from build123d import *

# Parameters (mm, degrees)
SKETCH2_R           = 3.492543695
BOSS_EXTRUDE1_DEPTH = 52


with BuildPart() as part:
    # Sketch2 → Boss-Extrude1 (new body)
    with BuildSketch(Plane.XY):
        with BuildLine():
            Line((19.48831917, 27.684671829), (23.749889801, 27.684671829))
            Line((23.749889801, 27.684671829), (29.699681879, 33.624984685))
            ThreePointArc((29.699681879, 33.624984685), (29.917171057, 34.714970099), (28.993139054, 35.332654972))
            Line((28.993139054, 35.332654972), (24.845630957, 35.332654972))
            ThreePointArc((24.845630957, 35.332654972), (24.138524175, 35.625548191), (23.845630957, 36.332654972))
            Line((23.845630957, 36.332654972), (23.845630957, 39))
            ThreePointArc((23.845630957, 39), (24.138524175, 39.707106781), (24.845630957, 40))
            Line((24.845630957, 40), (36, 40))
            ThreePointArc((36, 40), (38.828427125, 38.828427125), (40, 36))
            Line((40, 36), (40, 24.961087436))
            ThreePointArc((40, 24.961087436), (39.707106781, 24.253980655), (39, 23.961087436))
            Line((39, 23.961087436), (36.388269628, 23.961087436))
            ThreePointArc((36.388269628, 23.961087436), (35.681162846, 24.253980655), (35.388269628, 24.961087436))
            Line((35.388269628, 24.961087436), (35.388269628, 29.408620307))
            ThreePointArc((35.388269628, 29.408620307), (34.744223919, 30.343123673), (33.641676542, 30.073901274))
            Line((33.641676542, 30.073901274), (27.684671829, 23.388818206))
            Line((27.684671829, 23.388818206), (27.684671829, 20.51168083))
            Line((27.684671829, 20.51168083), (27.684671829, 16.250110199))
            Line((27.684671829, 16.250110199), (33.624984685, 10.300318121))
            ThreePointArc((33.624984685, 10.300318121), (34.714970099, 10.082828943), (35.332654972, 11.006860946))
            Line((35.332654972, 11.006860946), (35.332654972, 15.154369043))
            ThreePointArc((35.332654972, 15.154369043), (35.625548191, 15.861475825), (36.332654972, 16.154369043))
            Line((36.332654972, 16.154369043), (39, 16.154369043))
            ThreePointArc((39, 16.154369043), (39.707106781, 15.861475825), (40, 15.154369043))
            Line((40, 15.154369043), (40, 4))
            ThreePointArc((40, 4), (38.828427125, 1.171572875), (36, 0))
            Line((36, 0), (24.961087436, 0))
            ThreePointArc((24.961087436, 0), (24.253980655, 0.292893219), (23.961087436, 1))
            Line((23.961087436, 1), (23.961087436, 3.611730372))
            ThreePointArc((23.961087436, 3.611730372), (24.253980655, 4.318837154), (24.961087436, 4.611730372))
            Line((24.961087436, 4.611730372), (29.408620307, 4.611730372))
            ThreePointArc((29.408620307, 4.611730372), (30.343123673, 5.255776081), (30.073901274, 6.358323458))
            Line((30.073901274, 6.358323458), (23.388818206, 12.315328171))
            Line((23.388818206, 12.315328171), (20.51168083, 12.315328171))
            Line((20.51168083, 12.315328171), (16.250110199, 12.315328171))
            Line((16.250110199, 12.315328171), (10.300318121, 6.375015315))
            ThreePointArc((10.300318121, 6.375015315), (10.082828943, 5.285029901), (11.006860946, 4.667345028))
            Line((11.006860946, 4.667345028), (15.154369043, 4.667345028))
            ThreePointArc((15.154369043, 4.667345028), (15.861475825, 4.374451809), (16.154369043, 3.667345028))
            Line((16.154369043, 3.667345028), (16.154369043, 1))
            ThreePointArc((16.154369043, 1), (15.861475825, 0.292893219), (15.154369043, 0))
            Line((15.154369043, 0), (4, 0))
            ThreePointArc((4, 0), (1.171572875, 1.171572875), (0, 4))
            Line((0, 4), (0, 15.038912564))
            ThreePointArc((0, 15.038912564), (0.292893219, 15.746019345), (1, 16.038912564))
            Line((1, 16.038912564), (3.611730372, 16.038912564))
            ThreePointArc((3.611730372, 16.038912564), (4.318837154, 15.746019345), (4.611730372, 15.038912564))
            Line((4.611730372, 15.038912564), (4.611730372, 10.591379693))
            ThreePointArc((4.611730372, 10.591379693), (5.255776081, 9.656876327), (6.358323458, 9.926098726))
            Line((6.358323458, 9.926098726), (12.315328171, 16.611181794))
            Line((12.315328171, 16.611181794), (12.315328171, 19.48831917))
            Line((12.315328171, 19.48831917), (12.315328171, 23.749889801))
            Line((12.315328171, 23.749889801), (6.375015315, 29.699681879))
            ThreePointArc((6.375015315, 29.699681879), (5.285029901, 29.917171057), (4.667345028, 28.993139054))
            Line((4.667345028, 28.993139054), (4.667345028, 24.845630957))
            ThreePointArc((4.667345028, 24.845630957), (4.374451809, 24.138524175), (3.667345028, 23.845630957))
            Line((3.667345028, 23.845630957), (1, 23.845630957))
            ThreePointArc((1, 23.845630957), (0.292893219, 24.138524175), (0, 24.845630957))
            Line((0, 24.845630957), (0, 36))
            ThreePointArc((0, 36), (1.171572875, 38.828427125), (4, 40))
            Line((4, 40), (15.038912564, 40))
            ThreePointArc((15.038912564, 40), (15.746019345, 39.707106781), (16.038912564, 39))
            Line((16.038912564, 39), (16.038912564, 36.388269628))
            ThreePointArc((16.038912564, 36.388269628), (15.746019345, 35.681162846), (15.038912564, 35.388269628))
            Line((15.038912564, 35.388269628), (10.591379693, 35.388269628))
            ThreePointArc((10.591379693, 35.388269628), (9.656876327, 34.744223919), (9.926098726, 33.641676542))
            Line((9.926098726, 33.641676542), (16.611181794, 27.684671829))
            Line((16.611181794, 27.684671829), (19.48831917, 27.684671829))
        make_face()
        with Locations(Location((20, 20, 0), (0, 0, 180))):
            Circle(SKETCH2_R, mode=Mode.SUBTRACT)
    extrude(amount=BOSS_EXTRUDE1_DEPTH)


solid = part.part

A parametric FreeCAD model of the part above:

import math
import FreeCAD as App
import Part
import Sketcher

V = App.Vector
Q = App.Units.Quantity

doc = App.newDocument("Part")
body = doc.addObject("PartDesign::Body", "Body")

sketch1 = doc.addObject("Sketcher::SketchObject", "Sketch")
body.addObject(sketch1)
sketch1.AttachmentSupport = (doc.XY_Plane, [""])
sketch1.MapMode = "FlatFace"
sketch1.addGeometry(Part.LineSegment(V(29.7, 33.6, 0), V(23.7, 27.7, 0)), False)
sketch1.addGeometry(Part.LineSegment(V(23.7, 27.7, 0), V(16.6, 27.7, 0)), False)
sketch1.addGeometry(Part.LineSegment(V(16.6, 27.7, 0), V(9.9, 33.6, 0)), False)
sketch1.addGeometry(Part.ArcOfCircle(Part.Circle(V(10.6, 34.4, 0), V(0, 0, 1), 1), math.radians(90), math.radians(228)), False)
sketch1.addGeometry(Part.LineSegment(V(10.6, 35.4, 0), V(15, 35.4, 0)), False)
sketch1.addGeometry(Part.ArcOfCircle(Part.Circle(V(15, 36.4, 0), V(0, 0, 1), 1), math.radians(-90), math.radians(0)), False)
sketch1.addGeometry(Part.LineSegment(V(16, 36.4, 0), V(16, 39, 0)), False)
sketch1.addGeometry(Part.ArcOfCircle(Part.Circle(V(15, 39, 0), V(0, 0, 1), 1), math.radians(0), math.radians(90)), False)
sketch1.addGeometry(Part.LineSegment(V(15, 40, 0), V(4, 40, 0)), False)
sketch1.addGeometry(Part.ArcOfCircle(Part.Circle(V(4, 36, 0), V(0, 0, 1), 4), math.radians(90), math.radians(180)), False)
sketch1.addGeometry(Part.LineSegment(V(0, 36, 0), V(0, 24.8, 0)), False)
sketch1.addGeometry(Part.ArcOfCircle(Part.Circle(V(1, 24.8, 0), V(0, 0, 1), 1), math.radians(180), math.radians(270)), False)
sketch1.addGeometry(Part.LineSegment(V(1, 23.8, 0), V(3.7, 23.8, 0)), False)
sketch1.addGeometry(Part.ArcOfCircle(Part.Circle(V(3.7, 24.8, 0), V(0, 0, 1), 1), math.radians(-90), math.radians(0)), False)
sketch1.addGeometry(Part.LineSegment(V(4.7, 24.8, 0), V(4.7, 29, 0)), False)
sketch1.addGeometry(Part.ArcOfCircle(Part.Circle(V(5.7, 29, 0), V(0, 0, 1), 1), math.radians(45), math.radians(180)), False)
sketch1.addGeometry(Part.LineSegment(V(6.4, 29.7, 0), V(12.3, 23.7, 0)), False)
sketch1.addGeometry(Part.LineSegment(V(12.3, 23.7, 0), V(12.3, 16.6, 0)), False)
sketch1.addGeometry(Part.LineSegment(V(12.3, 16.6, 0), V(6.4, 9.9, 0)), False)
sketch1.addGeometry(Part.ArcOfCircle(Part.Circle(V(5.6, 10.6, 0), V(0, 0, 1), 1), math.radians(-180), math.radians(-42)), False)
sketch1.addGeometry(Part.LineSegment(V(4.6, 10.6, 0), V(4.6, 15, 0)), False)
sketch1.addGeometry(Part.ArcOfCircle(Part.Circle(V(3.6, 15, 0), V(0, 0, 1), 1), math.radians(0), math.radians(90)), False)
sketch1.addGeometry(Part.LineSegment(V(3.6, 16, 0), V(1, 16, 0)), False)
sketch1.addGeometry(Part.ArcOfCircle(Part.Circle(V(1, 15, 0), V(0, 0, 1), 1), math.radians(90), math.radians(180)), False)
sketch1.addGeometry(Part.LineSegment(V(0, 15, 0), V(0, 4, 0)), False)
sketch1.addGeometry(Part.ArcOfCircle(Part.Circle(V(4, 4, 0), V(0, 0, 1), 4), math.radians(180), math.radians(270)), False)
sketch1.addGeometry(Part.LineSegment(V(4, 0, 0), V(15.2, 0, 0)), False)
sketch1.addGeometry(Part.ArcOfCircle(Part.Circle(V(15.2, 1, 0), V(0, 0, 1), 1), math.radians(-90), math.radians(0)), False)
sketch1.addGeometry(Part.LineSegment(V(16.2, 1, 0), V(16.2, 3.7, 0)), False)
sketch1.addGeometry(Part.ArcOfCircle(Part.Circle(V(15.2, 3.7, 0), V(0, 0, 1), 1), math.radians(0), math.radians(90)), False)
sketch1.addGeometry(Part.LineSegment(V(15.2, 4.7, 0), V(11, 4.7, 0)), False)
sketch1.addGeometry(Part.ArcOfCircle(Part.Circle(V(11, 5.7, 0), V(0, 0, 1), 1), math.radians(135), math.radians(270)), False)
sketch1.addGeometry(Part.LineSegment(V(10.3, 6.4, 0), V(16.3, 12.3, 0)), False)
sketch1.addGeometry(Part.LineSegment(V(16.3, 12.3, 0), V(23.4, 12.3, 0)), False)
sketch1.addGeometry(Part.LineSegment(V(23.4, 12.3, 0), V(30.1, 6.4, 0)), False)
sketch1.addGeometry(Part.ArcOfCircle(Part.Circle(V(29.4, 5.6, 0), V(0, 0, 1), 1), math.radians(-90), math.radians(48)), False)
sketch1.addGeometry(Part.LineSegment(V(29.4, 4.6, 0), V(25, 4.6, 0)), False)
sketch1.addGeometry(Part.ArcOfCircle(Part.Circle(V(25, 3.6, 0), V(0, 0, 1), 1), math.radians(90), math.radians(180)), False)
sketch1.addGeometry(Part.LineSegment(V(24, 3.6, 0), V(24, 1, 0)), False)
sketch1.addGeometry(Part.ArcOfCircle(Part.Circle(V(25, 1, 0), V(0, 0, 1), 1), math.radians(-180), math.radians(-90)), False)
sketch1.addGeometry(Part.LineSegment(V(25, 0, 0), V(36, 0, 0)), False)
sketch1.addGeometry(Part.ArcOfCircle(Part.Circle(V(36, 4, 0), V(0, 0, 1), 4), math.radians(-90), math.radians(0)), False)
sketch1.addGeometry(Part.LineSegment(V(40, 4, 0), V(40, 15.2, 0)), False)
sketch1.addGeometry(Part.ArcOfCircle(Part.Circle(V(39, 15.2, 0), V(0, 0, 1), 1), math.radians(0), math.radians(90)), False)
sketch1.addGeometry(Part.LineSegment(V(39, 16.2, 0), V(36.3, 16.2, 0)), False)
sketch1.addGeometry(Part.ArcOfCircle(Part.Circle(V(36.3, 15.2, 0), V(0, 0, 1), 1), math.radians(90), math.radians(180)), False)
sketch1.addGeometry(Part.LineSegment(V(35.3, 15.2, 0), V(35.3, 11, 0)), False)
sketch1.addGeometry(Part.ArcOfCircle(Part.Circle(V(34.3, 11, 0), V(0, 0, 1), 1), math.radians(-135), math.radians(0)), False)
sketch1.addGeometry(Part.LineSegment(V(33.6, 10.3, 0), V(27.7, 16.3, 0)), False)
sketch1.addGeometry(Part.LineSegment(V(27.7, 16.3, 0), V(27.7, 23.4, 0)), False)
sketch1.addGeometry(Part.LineSegment(V(27.7, 23.4, 0), V(33.6, 30.1, 0)), False)
sketch1.addGeometry(Part.ArcOfCircle(Part.Circle(V(34.4, 29.4, 0), V(0, 0, 1), 1), math.radians(0), math.radians(138)), False)
sketch1.addGeometry(Part.LineSegment(V(35.4, 29.4, 0), V(35.4, 25, 0)), False)
sketch1.addGeometry(Part.ArcOfCircle(Part.Circle(V(36.4, 25, 0), V(0, 0, 1), 1), math.radians(180), math.radians(270)), False)
sketch1.addGeometry(Part.LineSegment(V(36.4, 24, 0), V(39, 24, 0)), False)
sketch1.addGeometry(Part.ArcOfCircle(Part.Circle(V(39, 25, 0), V(0, 0, 1), 1), math.radians(-90), math.radians(0)), False)
sketch1.addGeometry(Part.LineSegment(V(40, 25, 0), V(40, 36, 0)), False)
sketch1.addGeometry(Part.ArcOfCircle(Part.Circle(V(36, 36, 0), V(0, 0, 1), 4), math.radians(0), math.radians(90)), False)
sketch1.addGeometry(Part.LineSegment(V(36, 40, 0), V(24.8, 40, 0)), False)
sketch1.addGeometry(Part.ArcOfCircle(Part.Circle(V(24.8, 39, 0), V(0, 0, 1), 1), math.radians(90), math.radians(180)), False)
sketch1.addGeometry(Part.LineSegment(V(23.8, 39, 0), V(23.8, 36.3, 0)), False)
sketch1.addGeometry(Part.ArcOfCircle(Part.Circle(V(24.8, 36.3, 0), V(0, 0, 1), 1), math.radians(180), math.radians(270)), False)
sketch1.addGeometry(Part.LineSegment(V(24.8, 35.3, 0), V(29, 35.3, 0)), False)
sketch1.addGeometry(Part.ArcOfCircle(Part.Circle(V(29, 34.3, 0), V(0, 0, 1), 1), math.radians(-45), math.radians(90)), False)
sketch1.addGeometry(Part.Circle(V(20, 20, 0), V(0, 0, 1), 3.5), False)
sketch1.addConstraint(Sketcher.Constraint("Coincident", 0, 2, 1, 1))
sketch1.addConstraint(Sketcher.Constraint("Coincident", 1, 2, 2, 1))
sketch1.addConstraint(Sketcher.Constraint("Tangent", 2, 2, 3, 2))
sketch1.addConstraint(Sketcher.Constraint("Tangent", 3, 1, 4, 1))
sketch1.addConstraint(Sketcher.Constraint("Tangent", 4, 2, 5, 1))
sketch1.addConstraint(Sketcher.Constraint("Tangent", 5, 2, 6, 1))
sketch1.addConstraint(Sketcher.Constraint("Tangent", 6, 2, 7, 1))
sketch1.addConstraint(Sketcher.Constraint("Tangent", 7, 2, 8, 1))
sketch1.addConstraint(Sketcher.Constraint("Tangent", 8, 2, 9, 1))
sketch1.addConstraint(Sketcher.Constraint("Tangent", 9, 2, 10, 1))
sketch1.addConstraint(Sketcher.Constraint("Tangent", 10, 2, 11, 1))
sketch1.addConstraint(Sketcher.Constraint("Tangent", 11, 2, 12, 1))
sketch1.addConstraint(Sketcher.Constraint("Tangent", 12, 2, 13, 1))
sketch1.addConstraint(Sketcher.Constraint("Tangent", 13, 2, 14, 1))
sketch1.addConstraint(Sketcher.Constraint("Tangent", 14, 2, 15, 2))
sketch1.addConstraint(Sketcher.Constraint("Tangent", 15, 1, 16, 1))
sketch1.addConstraint(Sketcher.Constraint("Coincident", 16, 2, 17, 1))
sketch1.addConstraint(Sketcher.Constraint("Coincident", 17, 2, 18, 1))
sketch1.addConstraint(Sketcher.Constraint("Tangent", 18, 2, 19, 2))
sketch1.addConstraint(Sketcher.Constraint("Tangent", 19, 1, 20, 1))
sketch1.addConstraint(Sketcher.Constraint("Tangent", 20, 2, 21, 1))
sketch1.addConstraint(Sketcher.Constraint("Tangent", 21, 2, 22, 1))
sketch1.addConstraint(Sketcher.Constraint("Tangent", 22, 2, 23, 1))
sketch1.addConstraint(Sketcher.Constraint("Tangent", 23, 2, 24, 1))
sketch1.addConstraint(Sketcher.Constraint("Tangent", 24, 2, 25, 1))
sketch1.addConstraint(Sketcher.Constraint("Tangent", 25, 2, 26, 1))
sketch1.addConstraint(Sketcher.Constraint("Tangent", 26, 2, 27, 1))
sketch1.addConstraint(Sketcher.Constraint("Tangent", 27, 2, 28, 1))
sketch1.addConstraint(Sketcher.Constraint("Tangent", 28, 2, 29, 1))
sketch1.addConstraint(Sketcher.Constraint("Tangent", 29, 2, 30, 1))
sketch1.addConstraint(Sketcher.Constraint("Tangent", 30, 2, 31, 2))
sketch1.addConstraint(Sketcher.Constraint("Tangent", 31, 1, 32, 1))
sketch1.addConstraint(Sketcher.Constraint("Coincident", 32, 2, 33, 1))
sketch1.addConstraint(Sketcher.Constraint("Coincident", 33, 2, 34, 1))
sketch1.addConstraint(Sketcher.Constraint("Tangent", 34, 2, 35, 2))
sketch1.addConstraint(Sketcher.Constraint("Tangent", 35, 1, 36, 1))
sketch1.addConstraint(Sketcher.Constraint("Tangent", 36, 2, 37, 1))
sketch1.addConstraint(Sketcher.Constraint("Tangent", 37, 2, 38, 1))
sketch1.addConstraint(Sketcher.Constraint("Tangent", 38, 2, 39, 1))
sketch1.addConstraint(Sketcher.Constraint("Tangent", 39, 2, 40, 1))
sketch1.addConstraint(Sketcher.Constraint("Tangent", 40, 2, 41, 1))
sketch1.addConstraint(Sketcher.Constraint("Tangent", 41, 2, 42, 1))
sketch1.addConstraint(Sketcher.Constraint("Tangent", 42, 2, 43, 1))
sketch1.addConstraint(Sketcher.Constraint("Tangent", 43, 2, 44, 1))
sketch1.addConstraint(Sketcher.Constraint("Tangent", 44, 2, 45, 1))
sketch1.addConstraint(Sketcher.Constraint("Tangent", 45, 2, 46, 1))
sketch1.addConstraint(Sketcher.Constraint("Tangent", 46, 2, 47, 2))
sketch1.addConstraint(Sketcher.Constraint("Tangent", 47, 1, 48, 1))
sketch1.addConstraint(Sketcher.Constraint("Coincident", 48, 2, 49, 1))
sketch1.addConstraint(Sketcher.Constraint("Coincident", 49, 2, 50, 1))
sketch1.addConstraint(Sketcher.Constraint("Tangent", 50, 2, 51, 2))
sketch1.addConstraint(Sketcher.Constraint("Tangent", 51, 1, 52, 1))
sketch1.addConstraint(Sketcher.Constraint("Tangent", 52, 2, 53, 1))
sketch1.addConstraint(Sketcher.Constraint("Tangent", 53, 2, 54, 1))
sketch1.addConstraint(Sketcher.Constraint("Tangent", 54, 2, 55, 1))
sketch1.addConstraint(Sketcher.Constraint("Tangent", 55, 2, 56, 1))
sketch1.addConstraint(Sketcher.Constraint("Tangent", 56, 2, 57, 1))
sketch1.addConstraint(Sketcher.Constraint("Tangent", 57, 2, 58, 1))
sketch1.addConstraint(Sketcher.Constraint("Tangent", 58, 2, 59, 1))
sketch1.addConstraint(Sketcher.Constraint("Tangent", 59, 2, 60, 1))
sketch1.addConstraint(Sketcher.Constraint("Tangent", 60, 2, 61, 1))
sketch1.addConstraint(Sketcher.Constraint("Tangent", 61, 2, 62, 1))
sketch1.addConstraint(Sketcher.Constraint("Tangent", 62, 2, 63, 2))
sketch1.addConstraint(Sketcher.Constraint("Tangent", 63, 1, 0, 1))
sketch1.addConstraint(Sketcher.Constraint("Horizontal", 1))
sketch1.addConstraint(Sketcher.Constraint("Horizontal", 4))
sketch1.addConstraint(Sketcher.Constraint("Vertical", 6))
sketch1.addConstraint(Sketcher.Constraint("Horizontal", 8))
sketch1.addConstraint(Sketcher.Constraint("Vertical", 10))
sketch1.addConstraint(Sketcher.Constraint("Horizontal", 12))
sketch1.addConstraint(Sketcher.Constraint("Vertical", 14))
sketch1.addConstraint(Sketcher.Constraint("Vertical", 17))
sketch1.addConstraint(Sketcher.Constraint("Vertical", 20))
sketch1.addConstraint(Sketcher.Constraint("Horizontal", 22))
sketch1.addConstraint(Sketcher.Constraint("Vertical", 24))
sketch1.addConstraint(Sketcher.Constraint("Horizontal", 26))
sketch1.addConstraint(Sketcher.Constraint("Vertical", 28))
sketch1.addConstraint(Sketcher.Constraint("Horizontal", 30))
sketch1.addConstraint(Sketcher.Constraint("Horizontal", 33))
sketch1.addConstraint(Sketcher.Constraint("Horizontal", 36))
sketch1.addConstraint(Sketcher.Constraint("Vertical", 38))
sketch1.addConstraint(Sketcher.Constraint("Horizontal", 40))
sketch1.addConstraint(Sketcher.Constraint("Vertical", 42))
sketch1.addConstraint(Sketcher.Constraint("Horizontal", 44))
sketch1.addConstraint(Sketcher.Constraint("Vertical", 46))
sketch1.addConstraint(Sketcher.Constraint("Vertical", 49))
sketch1.addConstraint(Sketcher.Constraint("Vertical", 52))
sketch1.addConstraint(Sketcher.Constraint("Horizontal", 54))
sketch1.addConstraint(Sketcher.Constraint("Vertical", 56))
sketch1.addConstraint(Sketcher.Constraint("Horizontal", 58))
sketch1.addConstraint(Sketcher.Constraint("Vertical", 60))
sketch1.addConstraint(Sketcher.Constraint("Horizontal", 62))
sketch1.addConstraint(Sketcher.Constraint("Equal", 3, 5))
sketch1.addConstraint(Sketcher.Constraint("Equal", 5, 7))
sketch1.addConstraint(Sketcher.Constraint("Equal", 7, 11))
sketch1.addConstraint(Sketcher.Constraint("Equal", 11, 13))
sketch1.addConstraint(Sketcher.Constraint("Equal", 13, 15))
sketch1.addConstraint(Sketcher.Constraint("Equal", 15, 19))
sketch1.addConstraint(Sketcher.Constraint("Equal", 19, 21))
sketch1.addConstraint(Sketcher.Constraint("Equal", 21, 23))
sketch1.addConstraint(Sketcher.Constraint("Equal", 9, 25))
sketch1.addConstraint(Sketcher.Constraint("Equal", 23, 27))
sketch1.addConstraint(Sketcher.Constraint("Equal", 27, 29))
sketch1.addConstraint(Sketcher.Constraint("Equal", 29, 31))
sketch1.addConstraint(Sketcher.Constraint("Equal", 31, 35))
sketch1.addConstraint(Sketcher.Constraint("Equal", 35, 37))
sketch1.addConstraint(Sketcher.Constraint("Equal", 37, 39))
sketch1.addConstraint(Sketcher.Constraint("Equal", 25, 41))
sketch1.addConstraint(Sketcher.Constraint("Equal", 39, 43))
sketch1.addConstraint(Sketcher.Constraint("Equal", 43, 45))
sketch1.addConstraint(Sketcher.Constraint("Equal", 45, 47))
sketch1.addConstraint(Sketcher.Constraint("Equal", 47, 51))
sketch1.addConstraint(Sketcher.Constraint("Equal", 51, 53))
sketch1.addConstraint(Sketcher.Constraint("Equal", 53, 55))
sketch1.addConstraint(Sketcher.Constraint("Equal", 41, 57))
sketch1.addConstraint(Sketcher.Constraint("Equal", 55, 59))
sketch1.addConstraint(Sketcher.Constraint("Equal", 59, 61))
sketch1.addConstraint(Sketcher.Constraint("Equal", 61, 63))
sketch1.addConstraint(Sketcher.Constraint("PointOnObject", 9, 2, -2))
sketch1.addConstraint(Sketcher.Constraint("PointOnObject", 23, 2, -2))
sketch1.addConstraint(Sketcher.Constraint("PointOnObject", 25, 2, -1))
sketch1.addConstraint(Sketcher.Constraint("PointOnObject", 39, 2, -1))
sketch1.addConstraint(Sketcher.Constraint("Perpendicular", 0, 16))
sketch1.addConstraint(Sketcher.Constraint("Perpendicular", 2, 18))
sketch1.addConstraint(Sketcher.Constraint("Perpendicular", 16, 32))
sketch1.addConstraint(Sketcher.Constraint("Perpendicular", 18, 34))
sketch1.addConstraint(Sketcher.Constraint("Perpendicular", 32, 48))
sketch1.addConstraint(Sketcher.Constraint("Perpendicular", 34, 50))
sketch1.addConstraint(Sketcher.Constraint("Horizontal", 9, 3, 57, 3))
sketch1.addConstraint(Sketcher.Constraint("Vertical", 43, 3, 55, 3))
sketch1.addConstraint(Sketcher.Constraint("Equal", 1, 33))
sketch1.addConstraint(Sketcher.Constraint("Equal", 4, 36))
sketch1.addConstraint(Sketcher.Constraint("Equal", 8, 40))
sketch1.addConstraint(Sketcher.Constraint("Equal", 12, 44))
sketch1.addConstraint(Sketcher.Constraint("Equal", 22, 54))
sketch1.addConstraint(Sketcher.Constraint("Equal", 26, 58))
sketch1.addConstraint(Sketcher.Constraint("Equal", 30, 62))
sketch1.addConstraint(Sketcher.Constraint("Equal", 54, 6))
sketch1.addConstraint(Sketcher.Constraint("Equal", 58, 10))
sketch1.addConstraint(Sketcher.Constraint("Equal", 62, 14))
sketch1.addConstraint(Sketcher.Constraint("Equal", 33, 17))
sketch1.addConstraint(Sketcher.Constraint("Equal", 36, 20))
sketch1.addConstraint(Sketcher.Constraint("Equal", 40, 24))
sketch1.addConstraint(Sketcher.Constraint("Equal", 44, 28))
sketch1.addConstraint(Sketcher.Constraint("Equal", 6, 38))
sketch1.addConstraint(Sketcher.Constraint("Equal", 10, 42))
sketch1.addConstraint(Sketcher.Constraint("Equal", 14, 46))
sketch1.addConstraint(Sketcher.Constraint("Equal", 17, 49))
sketch1.addConstraint(Sketcher.Constraint("Equal", 20, 52))
sketch1.addConstraint(Sketcher.Constraint("Equal", 24, 56))
sketch1.addConstraint(Sketcher.Constraint("Equal", 28, 60))
sketch1.addConstraint(Sketcher.Constraint("Equal", 0, 16))
sketch1.addConstraint(Sketcher.Constraint("Radius", 3, Q("1 mm")))
sketch1.addConstraint(Sketcher.Constraint("Radius", 9, Q("4 mm")))
sketch1.addConstraint(Sketcher.Constraint("DistanceY", -1, 1, 7, 3, Q("39 mm")))
sketch1.addConstraint(Sketcher.Constraint("DistanceX", -1, 1, 64, 3, Q("20 mm")))
sketch1.addConstraint(Sketcher.Constraint("DistanceY", -1, 1, 64, 3, Q("20 mm")))
sketch1.addConstraint(Sketcher.Constraint("Diameter", 64, Q("6.985087 mm")))
sketch1.addConstraint(Sketcher.Constraint("DistanceX", 1, 2, 1, 1, Q("7.138708 mm")))
sketch1.addConstraint(Sketcher.Constraint("DistanceX", 22, 2, 22, 1, Q("2.61173 mm")))
sketch1.addConstraint(Sketcher.Constraint("DistanceX", 26, 1, 26, 2, Q("11.154369 mm")))
sketch1.addConstraint(Sketcher.Constraint("DistanceX", 30, 2, 30, 1, Q("4.147508 mm")))
sketch1.addConstraint(Sketcher.Constraint("DistanceX", -1, 1, 2, 2, Q("9.926099 mm")))
sketch1.addConstraint(Sketcher.Constraint("Distance", 2, Q("8.954119 mm")))
sketch1.addConstraint(Sketcher.Constraint("DistanceX", 4, 1, 4, 2, Q("4.447533 mm")))
sketch1.addConstraint(Sketcher.Constraint("DistanceX", 8, 2, 8, 1, Q("11.038913 mm")))
sketch1.addConstraint(Sketcher.Constraint("DistanceX", 12, 1, 12, 2, Q("2.667345 mm")))
pad1 = doc.addObject("PartDesign::Pad", "Pad")
body.addObject(pad1)
pad1.Profile = sketch1
pad1.Length = 52

doc.recompute()
